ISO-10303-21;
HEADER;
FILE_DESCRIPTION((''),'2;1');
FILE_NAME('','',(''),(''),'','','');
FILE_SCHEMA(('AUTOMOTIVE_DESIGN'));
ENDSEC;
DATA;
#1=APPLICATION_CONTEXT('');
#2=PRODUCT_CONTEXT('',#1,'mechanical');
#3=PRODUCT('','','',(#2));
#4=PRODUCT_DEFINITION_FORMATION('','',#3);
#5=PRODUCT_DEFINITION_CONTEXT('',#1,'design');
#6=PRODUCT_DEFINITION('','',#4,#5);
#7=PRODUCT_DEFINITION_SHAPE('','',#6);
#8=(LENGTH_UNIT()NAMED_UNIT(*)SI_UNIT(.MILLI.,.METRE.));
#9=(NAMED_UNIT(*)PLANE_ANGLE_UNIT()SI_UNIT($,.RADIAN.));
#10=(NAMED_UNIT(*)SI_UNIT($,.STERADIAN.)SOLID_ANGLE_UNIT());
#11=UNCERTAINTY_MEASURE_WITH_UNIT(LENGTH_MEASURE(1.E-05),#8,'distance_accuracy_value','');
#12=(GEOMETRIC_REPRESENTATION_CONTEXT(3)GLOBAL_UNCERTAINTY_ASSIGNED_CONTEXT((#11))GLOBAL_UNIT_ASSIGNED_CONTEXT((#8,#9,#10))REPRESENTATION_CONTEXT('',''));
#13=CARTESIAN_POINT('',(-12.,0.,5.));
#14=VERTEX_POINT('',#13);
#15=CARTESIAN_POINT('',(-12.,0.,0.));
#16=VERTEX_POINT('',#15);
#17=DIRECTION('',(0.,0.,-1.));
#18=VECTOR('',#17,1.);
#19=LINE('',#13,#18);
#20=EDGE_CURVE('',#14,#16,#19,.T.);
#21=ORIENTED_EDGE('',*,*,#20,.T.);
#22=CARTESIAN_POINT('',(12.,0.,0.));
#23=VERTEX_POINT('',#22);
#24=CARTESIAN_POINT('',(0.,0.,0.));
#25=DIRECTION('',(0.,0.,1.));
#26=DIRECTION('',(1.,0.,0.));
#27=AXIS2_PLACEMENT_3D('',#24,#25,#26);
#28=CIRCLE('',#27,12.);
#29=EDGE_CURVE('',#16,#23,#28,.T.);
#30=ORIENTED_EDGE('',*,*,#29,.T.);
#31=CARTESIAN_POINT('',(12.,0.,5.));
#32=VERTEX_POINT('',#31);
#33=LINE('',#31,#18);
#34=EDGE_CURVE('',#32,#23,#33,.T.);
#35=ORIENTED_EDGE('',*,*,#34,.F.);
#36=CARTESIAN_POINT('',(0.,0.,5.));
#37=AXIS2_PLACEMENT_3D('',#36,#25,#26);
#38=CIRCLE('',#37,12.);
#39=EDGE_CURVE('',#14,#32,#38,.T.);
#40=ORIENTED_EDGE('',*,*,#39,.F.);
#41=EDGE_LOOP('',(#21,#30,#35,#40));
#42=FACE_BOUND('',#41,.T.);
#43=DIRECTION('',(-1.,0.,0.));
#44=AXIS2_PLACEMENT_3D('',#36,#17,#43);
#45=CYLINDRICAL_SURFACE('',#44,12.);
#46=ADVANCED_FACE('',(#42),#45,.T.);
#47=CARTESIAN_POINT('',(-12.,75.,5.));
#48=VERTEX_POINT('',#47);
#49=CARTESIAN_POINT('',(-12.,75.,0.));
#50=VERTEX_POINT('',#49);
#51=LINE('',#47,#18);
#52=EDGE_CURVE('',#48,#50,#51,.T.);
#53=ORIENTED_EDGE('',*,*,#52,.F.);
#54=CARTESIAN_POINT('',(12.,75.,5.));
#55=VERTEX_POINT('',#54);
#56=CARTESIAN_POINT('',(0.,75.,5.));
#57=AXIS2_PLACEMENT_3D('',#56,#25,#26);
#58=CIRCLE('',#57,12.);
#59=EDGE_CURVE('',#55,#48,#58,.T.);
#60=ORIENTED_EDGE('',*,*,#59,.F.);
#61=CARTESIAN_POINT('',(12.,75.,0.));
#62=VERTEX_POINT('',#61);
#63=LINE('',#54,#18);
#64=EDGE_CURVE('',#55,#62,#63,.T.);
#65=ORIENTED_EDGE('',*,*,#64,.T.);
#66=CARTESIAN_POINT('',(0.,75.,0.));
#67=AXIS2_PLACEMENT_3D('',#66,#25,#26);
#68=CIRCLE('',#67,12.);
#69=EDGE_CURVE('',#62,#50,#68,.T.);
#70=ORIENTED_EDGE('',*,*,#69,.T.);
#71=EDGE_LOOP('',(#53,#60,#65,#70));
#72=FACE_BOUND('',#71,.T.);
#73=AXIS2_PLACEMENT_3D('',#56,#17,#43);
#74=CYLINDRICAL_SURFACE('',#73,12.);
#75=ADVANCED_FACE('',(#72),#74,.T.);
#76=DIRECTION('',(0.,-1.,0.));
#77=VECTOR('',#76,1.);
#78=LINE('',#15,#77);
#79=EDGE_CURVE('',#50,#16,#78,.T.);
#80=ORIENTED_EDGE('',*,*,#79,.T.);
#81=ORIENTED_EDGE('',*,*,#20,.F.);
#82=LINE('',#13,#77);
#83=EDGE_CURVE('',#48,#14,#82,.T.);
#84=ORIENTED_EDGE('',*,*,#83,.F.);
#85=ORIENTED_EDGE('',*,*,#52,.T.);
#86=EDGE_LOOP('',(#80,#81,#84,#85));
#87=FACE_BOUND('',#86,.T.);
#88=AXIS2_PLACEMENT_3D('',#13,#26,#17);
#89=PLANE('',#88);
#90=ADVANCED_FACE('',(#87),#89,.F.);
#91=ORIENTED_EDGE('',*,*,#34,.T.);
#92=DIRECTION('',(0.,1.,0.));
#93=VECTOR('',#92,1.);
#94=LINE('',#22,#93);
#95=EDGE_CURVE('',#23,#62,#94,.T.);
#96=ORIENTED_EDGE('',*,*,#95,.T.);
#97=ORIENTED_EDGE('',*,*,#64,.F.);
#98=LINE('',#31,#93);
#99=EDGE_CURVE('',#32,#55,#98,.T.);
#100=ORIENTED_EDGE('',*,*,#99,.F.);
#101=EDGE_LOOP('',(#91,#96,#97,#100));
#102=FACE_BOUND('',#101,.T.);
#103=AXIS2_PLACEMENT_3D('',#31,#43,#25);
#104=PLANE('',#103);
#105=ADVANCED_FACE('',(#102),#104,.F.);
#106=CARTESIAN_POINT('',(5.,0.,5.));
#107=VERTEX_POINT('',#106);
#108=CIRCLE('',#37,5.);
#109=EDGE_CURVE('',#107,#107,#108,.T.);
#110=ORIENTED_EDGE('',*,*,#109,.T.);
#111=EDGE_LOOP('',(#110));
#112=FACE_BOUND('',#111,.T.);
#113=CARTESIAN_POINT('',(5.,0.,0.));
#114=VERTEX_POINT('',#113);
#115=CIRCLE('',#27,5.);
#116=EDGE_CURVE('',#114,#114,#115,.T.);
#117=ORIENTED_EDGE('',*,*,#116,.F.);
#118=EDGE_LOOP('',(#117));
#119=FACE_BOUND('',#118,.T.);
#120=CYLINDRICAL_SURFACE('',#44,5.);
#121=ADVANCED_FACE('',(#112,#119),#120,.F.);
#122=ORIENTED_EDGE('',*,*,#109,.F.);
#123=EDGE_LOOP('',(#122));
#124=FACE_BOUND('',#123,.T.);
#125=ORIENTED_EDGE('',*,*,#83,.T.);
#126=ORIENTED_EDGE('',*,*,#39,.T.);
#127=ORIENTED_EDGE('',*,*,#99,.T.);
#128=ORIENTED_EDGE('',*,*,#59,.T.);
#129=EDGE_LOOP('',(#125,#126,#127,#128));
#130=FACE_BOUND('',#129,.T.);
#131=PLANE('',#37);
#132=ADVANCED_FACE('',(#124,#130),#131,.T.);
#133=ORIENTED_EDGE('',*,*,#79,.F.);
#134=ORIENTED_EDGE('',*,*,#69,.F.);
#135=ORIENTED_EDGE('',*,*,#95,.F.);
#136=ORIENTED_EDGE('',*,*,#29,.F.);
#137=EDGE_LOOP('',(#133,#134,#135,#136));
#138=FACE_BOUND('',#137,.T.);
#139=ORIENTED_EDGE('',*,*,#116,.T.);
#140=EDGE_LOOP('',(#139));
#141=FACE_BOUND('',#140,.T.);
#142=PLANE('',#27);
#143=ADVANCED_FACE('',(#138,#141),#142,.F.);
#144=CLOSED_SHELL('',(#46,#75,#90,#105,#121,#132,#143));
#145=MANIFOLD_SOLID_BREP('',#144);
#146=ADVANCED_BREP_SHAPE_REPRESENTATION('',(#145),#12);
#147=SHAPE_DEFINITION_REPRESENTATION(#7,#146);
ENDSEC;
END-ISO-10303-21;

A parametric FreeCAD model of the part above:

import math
import FreeCAD as App
import Part
import Sketcher
Q = App.Units.Quantity

doc = App.newDocument("Part")
body = doc.addObject("PartDesign::Body", "Body")

# Sketch on XY plane
sketch1 = body.newObject("Sketcher::SketchObject", "Sketch")
sketch1.AttachmentSupport = (doc.getObject("XY_Plane"), [""])
sketch1.MapMode = "FlatFace"
sketch1.addGeometry([
    Part.LineSegment(App.Vector(-12, 75, 0), App.Vector(-12, 0, 0)),  # 0
    Part.ArcOfCircle(Part.Circle(App.Vector(0, 0, 0), App.Vector(0, 0, 1), 12), math.radians(180), math.radians(360)),  # 1
    Part.LineSegment(App.Vector(12, 0, 0), App.Vector(12, 75, 0)),  # 2
    Part.ArcOfCircle(Part.Circle(App.Vector(0, 75, 0), App.Vector(0, 0, 1), 12), math.radians(0), math.radians(180)),  # 3
    Part.Circle(App.Vector(0, 0, 0), App.Vector(0, 0, 1), 5),  # 4
], False)
sketch1.addConstraint([
    Sketcher.Constraint("Tangent", 0, 2, 1, 1),
    Sketcher.Constraint("Tangent", 1, 2, 2, 1),
    Sketcher.Constraint("Tangent", 2, 2, 3, 1),
    Sketcher.Constraint("Tangent", 3, 2, 0, 1),
    Sketcher.Constraint("Vertical", 0),
    Sketcher.Constraint("Vertical", 2),
    Sketcher.Constraint("Coincident", 1, 3, -1, 1),
    Sketcher.Constraint("Coincident", 4, 3, -1, 1),
    Sketcher.Constraint("Diameter", 4, Q("10 mm")),
    Sketcher.Constraint("Radius", 1, Q("12 mm")),
    Sketcher.Constraint("DistanceY", 0, 2, 0, 1, Q("75 mm")),
])
pad1 = body.newObject("PartDesign::Pad", "Pad")
pad1.Profile = sketch1
pad1.Length = 5

doc.recompute()
